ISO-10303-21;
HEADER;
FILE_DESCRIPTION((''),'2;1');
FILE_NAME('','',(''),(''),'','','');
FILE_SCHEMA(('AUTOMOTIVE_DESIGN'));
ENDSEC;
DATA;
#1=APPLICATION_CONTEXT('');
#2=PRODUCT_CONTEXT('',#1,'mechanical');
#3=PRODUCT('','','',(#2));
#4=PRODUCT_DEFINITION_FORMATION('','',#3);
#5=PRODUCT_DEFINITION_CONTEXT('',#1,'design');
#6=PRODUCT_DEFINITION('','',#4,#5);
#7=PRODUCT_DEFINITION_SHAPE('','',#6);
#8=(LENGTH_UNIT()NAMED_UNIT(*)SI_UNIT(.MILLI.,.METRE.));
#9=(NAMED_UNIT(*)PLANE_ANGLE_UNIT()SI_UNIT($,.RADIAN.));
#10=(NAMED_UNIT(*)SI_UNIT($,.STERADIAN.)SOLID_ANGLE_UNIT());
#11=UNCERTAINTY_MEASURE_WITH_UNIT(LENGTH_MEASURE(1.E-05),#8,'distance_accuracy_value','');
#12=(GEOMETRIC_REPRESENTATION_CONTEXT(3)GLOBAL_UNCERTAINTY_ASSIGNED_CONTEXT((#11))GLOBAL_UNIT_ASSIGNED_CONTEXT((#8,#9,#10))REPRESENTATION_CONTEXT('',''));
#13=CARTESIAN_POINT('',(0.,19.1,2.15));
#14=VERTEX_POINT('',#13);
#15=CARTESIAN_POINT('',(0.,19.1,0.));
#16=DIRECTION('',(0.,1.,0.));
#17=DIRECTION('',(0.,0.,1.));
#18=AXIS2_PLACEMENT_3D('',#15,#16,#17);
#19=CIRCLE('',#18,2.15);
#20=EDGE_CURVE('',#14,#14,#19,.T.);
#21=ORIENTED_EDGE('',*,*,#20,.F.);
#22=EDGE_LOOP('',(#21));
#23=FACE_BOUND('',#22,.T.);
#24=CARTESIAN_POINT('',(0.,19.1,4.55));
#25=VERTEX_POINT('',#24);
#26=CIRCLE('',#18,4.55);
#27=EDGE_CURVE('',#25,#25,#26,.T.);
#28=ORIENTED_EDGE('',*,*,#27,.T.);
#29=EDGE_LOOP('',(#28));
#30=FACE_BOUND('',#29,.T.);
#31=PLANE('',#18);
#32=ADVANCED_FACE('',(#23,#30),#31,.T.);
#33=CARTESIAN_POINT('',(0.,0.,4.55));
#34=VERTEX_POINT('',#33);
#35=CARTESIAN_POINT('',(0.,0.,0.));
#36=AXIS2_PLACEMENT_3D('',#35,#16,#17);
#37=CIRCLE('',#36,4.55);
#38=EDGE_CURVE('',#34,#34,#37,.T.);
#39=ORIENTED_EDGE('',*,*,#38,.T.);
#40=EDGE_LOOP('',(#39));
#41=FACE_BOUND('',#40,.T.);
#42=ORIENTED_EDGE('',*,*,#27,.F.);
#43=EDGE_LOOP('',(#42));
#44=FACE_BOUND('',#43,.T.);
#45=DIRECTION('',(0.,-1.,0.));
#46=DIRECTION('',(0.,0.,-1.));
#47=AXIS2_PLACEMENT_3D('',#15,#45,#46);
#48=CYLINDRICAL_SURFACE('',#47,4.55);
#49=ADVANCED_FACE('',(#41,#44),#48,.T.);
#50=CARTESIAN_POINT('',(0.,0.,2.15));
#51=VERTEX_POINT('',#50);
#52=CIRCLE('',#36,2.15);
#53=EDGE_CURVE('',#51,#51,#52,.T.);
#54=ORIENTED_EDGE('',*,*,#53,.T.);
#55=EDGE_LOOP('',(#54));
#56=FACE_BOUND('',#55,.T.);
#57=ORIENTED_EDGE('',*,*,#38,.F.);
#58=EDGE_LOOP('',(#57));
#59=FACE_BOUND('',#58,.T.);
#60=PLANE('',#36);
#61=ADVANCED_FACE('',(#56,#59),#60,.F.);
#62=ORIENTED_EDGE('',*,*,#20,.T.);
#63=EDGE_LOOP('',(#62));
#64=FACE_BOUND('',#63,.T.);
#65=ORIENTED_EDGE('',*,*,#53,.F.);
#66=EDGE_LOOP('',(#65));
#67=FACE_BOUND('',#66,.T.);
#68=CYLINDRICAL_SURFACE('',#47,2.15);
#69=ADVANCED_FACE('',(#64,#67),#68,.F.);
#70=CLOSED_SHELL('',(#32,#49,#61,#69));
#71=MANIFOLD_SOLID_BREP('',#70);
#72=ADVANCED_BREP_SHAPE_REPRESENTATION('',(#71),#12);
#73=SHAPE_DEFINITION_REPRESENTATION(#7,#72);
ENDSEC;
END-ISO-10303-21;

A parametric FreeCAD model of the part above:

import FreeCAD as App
import Part
import Sketcher

V = App.Vector

doc = App.newDocument("Part")
body = doc.addObject("PartDesign::Body", "Body")

sketch1 = body.newObject("Sketcher::SketchObject", "Sketch")
sketch1.AttachmentSupport = (doc.getObject("XZ_Plane"), [""])
sketch1.MapMode = "FlatFace"
sketch1.addGeometry([
    Part.Circle(V(0, 0, 0), V(0, 0, 1), 4.55),
    Part.Circle(V(0, 0, 0), V(0, 0, 1), 2.15),
], False)
sketch1.addConstraint([
    Sketcher.Constraint("Coincident", 0, 3, -1, 1),
    Sketcher.Constraint("Coincident", 1, 3, -1, 1),
    Sketcher.Constraint("Diameter", 0, 9.1),
    Sketcher.Constraint("Diameter", 1, 4.3),
])
pad1 = body.newObject("PartDesign::Pad", "Pad")
pad1.Profile = sketch1
pad1.Length = 19.1
pad1.Reversed = True

doc.recompute()
